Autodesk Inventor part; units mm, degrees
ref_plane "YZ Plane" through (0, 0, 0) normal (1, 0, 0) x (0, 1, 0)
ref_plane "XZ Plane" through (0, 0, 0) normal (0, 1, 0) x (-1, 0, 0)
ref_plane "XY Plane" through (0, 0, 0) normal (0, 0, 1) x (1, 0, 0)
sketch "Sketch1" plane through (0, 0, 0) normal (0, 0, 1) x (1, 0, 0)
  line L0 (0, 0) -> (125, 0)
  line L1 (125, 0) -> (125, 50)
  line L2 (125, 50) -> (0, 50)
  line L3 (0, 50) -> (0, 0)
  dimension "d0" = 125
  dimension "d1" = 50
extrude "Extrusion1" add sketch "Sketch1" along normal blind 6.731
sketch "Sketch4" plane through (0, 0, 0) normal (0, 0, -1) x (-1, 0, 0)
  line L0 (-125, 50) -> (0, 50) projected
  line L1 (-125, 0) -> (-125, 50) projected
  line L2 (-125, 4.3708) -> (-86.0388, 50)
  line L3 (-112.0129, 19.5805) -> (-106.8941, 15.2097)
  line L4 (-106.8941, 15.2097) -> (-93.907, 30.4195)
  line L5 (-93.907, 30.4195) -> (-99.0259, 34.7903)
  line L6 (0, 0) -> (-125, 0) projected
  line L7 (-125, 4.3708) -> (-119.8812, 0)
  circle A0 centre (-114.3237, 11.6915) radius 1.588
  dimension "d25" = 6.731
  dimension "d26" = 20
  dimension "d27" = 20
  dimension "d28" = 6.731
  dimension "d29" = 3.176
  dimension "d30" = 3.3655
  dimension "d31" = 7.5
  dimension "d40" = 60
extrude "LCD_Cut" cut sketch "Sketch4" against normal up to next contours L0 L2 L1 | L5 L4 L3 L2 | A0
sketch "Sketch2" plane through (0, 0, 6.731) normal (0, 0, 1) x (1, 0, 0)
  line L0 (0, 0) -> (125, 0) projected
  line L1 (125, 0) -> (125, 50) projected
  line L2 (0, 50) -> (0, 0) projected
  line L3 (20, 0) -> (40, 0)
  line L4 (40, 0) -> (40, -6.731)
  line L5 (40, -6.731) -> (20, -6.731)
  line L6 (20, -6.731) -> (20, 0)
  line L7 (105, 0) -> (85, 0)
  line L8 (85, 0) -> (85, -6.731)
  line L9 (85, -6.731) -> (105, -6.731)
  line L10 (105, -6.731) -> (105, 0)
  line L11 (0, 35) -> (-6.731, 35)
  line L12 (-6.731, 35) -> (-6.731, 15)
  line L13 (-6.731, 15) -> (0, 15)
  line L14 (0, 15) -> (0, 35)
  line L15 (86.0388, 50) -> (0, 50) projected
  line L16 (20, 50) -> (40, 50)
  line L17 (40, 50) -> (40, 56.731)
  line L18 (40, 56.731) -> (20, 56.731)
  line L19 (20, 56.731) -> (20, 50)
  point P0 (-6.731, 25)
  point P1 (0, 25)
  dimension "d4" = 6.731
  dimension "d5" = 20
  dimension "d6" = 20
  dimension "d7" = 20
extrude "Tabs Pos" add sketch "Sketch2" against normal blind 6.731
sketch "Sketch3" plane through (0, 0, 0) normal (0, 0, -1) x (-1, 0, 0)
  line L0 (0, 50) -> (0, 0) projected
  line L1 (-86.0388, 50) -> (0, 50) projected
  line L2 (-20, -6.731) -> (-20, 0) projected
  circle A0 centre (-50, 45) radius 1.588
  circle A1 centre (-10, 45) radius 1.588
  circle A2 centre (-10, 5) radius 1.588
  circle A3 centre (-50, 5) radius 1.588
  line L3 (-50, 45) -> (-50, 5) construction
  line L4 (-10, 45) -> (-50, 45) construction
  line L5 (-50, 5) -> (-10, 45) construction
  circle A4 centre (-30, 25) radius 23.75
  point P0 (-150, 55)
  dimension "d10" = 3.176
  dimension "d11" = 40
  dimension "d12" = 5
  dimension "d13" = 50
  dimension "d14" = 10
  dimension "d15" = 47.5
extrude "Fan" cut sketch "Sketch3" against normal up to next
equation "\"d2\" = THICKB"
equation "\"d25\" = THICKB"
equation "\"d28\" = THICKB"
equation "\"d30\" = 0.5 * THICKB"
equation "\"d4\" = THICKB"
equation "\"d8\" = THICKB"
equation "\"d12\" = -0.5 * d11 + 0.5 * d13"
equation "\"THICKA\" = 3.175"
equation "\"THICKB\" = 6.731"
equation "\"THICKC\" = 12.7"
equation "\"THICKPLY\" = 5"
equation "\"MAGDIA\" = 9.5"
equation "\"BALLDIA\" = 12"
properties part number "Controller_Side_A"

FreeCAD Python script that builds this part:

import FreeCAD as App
import Part
import Sketcher

V = App.Vector
Q = App.Units.Quantity


def add_polygon(sketch, points):
    """Adds a closed chain of lines whose ends are joined by coincident constraints."""
    first, n = sketch.GeometryCount, len(points)
    for a, b in zip(points, points[1:] + points[:1]):
        sketch.addGeometry(Part.LineSegment(App.Vector(*a, 0), App.Vector(*b, 0)), False)
    for i in range(n):
        sketch.addConstraint(Sketcher.Constraint("Coincident", first + i, 2, first + (i + 1) % n, 1))

doc = App.newDocument("Part")
params = doc.addObject("Spreadsheet::Sheet", "Params")
for row, (alias, value) in enumerate([
    ("pad1_length", "0.265 in"),
    ("sketch2_length", "0.265 in"),
    ("sketch3_width", "0.265 in"),
    ("pad2_length", "0.265 in"),
], start=1):
    params.set(f"A{row}", alias)
    params.set(f"B{row}", "=" + value)
    params.setAlias(f"B{row}", alias)

body = doc.addObject("PartDesign::Body", "Body")

# Sketch on XY plane
sketch1 = body.newObject("Sketcher::SketchObject", "Sketch")
sketch1.AttachmentSupport = (doc.getObject("XY_Plane"), [""])
sketch1.MapMode = "FlatFace"
add_polygon(sketch1, [(0, 50), (0, 0), (125, 0), (125, 50)])  # lines 0-3
sketch1.addConstraint([
    Sketcher.Constraint("Vertical", 0),
    Sketcher.Constraint("Horizontal", 1),
    Sketcher.Constraint("Vertical", 2),
    Sketcher.Constraint("Horizontal", 3),
    Sketcher.Constraint("Coincident", 0, 2, -1, 1),
    Sketcher.Constraint("DistanceY", 0, 2, 0, 1, Q("1.9685 in")),
    Sketcher.Constraint("DistanceX", 1, 1, 1, 2, Q("125 mm")),
])
pad1 = body.newObject("PartDesign::Pad", "Pad")
pad1.Profile = sketch1
pad1.setExpression("Length", "Params.pad1_length")

# Sketch on XY plane
sketch2 = body.newObject("Sketcher::SketchObject", "Sketch001")
sketch2.AttachmentSupport = (doc.getObject("XY_Plane"), [""])
sketch2.MapMode = "FlatFace"
add_polygon(sketch2, [(86, 50), (125, 50), (125, 4.4), (112, 19.6), (106.9, 15.2), (93.9, 30.4), (99, 34.8)])  # lines 0-6
sketch2.addGeometry(Part.Circle(V(114.3, 11.7, 0), V(0, 0, 1), 1.6), False)  # 7
sketch2.addConstraint([
    Sketcher.Constraint("Horizontal", 0),
    Sketcher.Constraint("Vertical", 1),
    Sketcher.Constraint("Perpendicular", 2, 3),
    Sketcher.Constraint("Perpendicular", 3, 4),
    Sketcher.Constraint("Perpendicular", 4, 5),
    Sketcher.Constraint("Perpendicular", 5, 6),
    Sketcher.Constraint("Equal", 2, 4),
    Sketcher.Constraint("Equal", 3, 5),
    Sketcher.Constraint("Equal", 4, 6),
    Sketcher.Constraint("Diameter", 7, Q("3.176 mm")),
    Sketcher.Constraint("Distance", 3, Q("0.265 in")),
    Sketcher.Constraint("Distance", 2, Q("0.7874 in")),
    Sketcher.Constraint("DistanceX", 0, 1, 0, 2, Q("1.5339 in")),
    Sketcher.Constraint("DistanceY", -1, 1, 7, 3, Q("0.4603 in")),
    Sketcher.Constraint("DistanceY", -1, 1, 0, 2, Q("1.9685 in")),
    Sketcher.Constraint("DistanceX", 3, 2, 7, 3, Q("0.2925 in")),
    Sketcher.Constraint("DistanceX", -1, 1, 7, 3, Q("114.3237 mm")),
])
sketch2.setExpression("Constraints[17]", "Params.sketch2_length")
pocket1 = body.newObject("PartDesign::Pocket", "Pocket")
pocket1.Profile = sketch2
pocket1.Type = "UpToFirst"
pocket1.Reversed = True

# Sketch on XY plane
sketch3 = body.newObject("Sketcher::SketchObject", "Sketch002")
sketch3.AttachmentSupport = (doc.getObject("XY_Plane"), [""])
sketch3.MapMode = "FlatFace"
sketch3.AttachmentOffset = App.Placement(V(0, 0, 0.265 * 25.4), App.Rotation())
add_polygon(sketch3, [(105, 0), (85, 0), (85, -7), (105, -7)])  # lines 0-3
add_polygon(sketch3, [(40, 0), (20, 0), (20, -7), (40, -7)])  # lines 4-7
add_polygon(sketch3, [(20, 57), (20, 50), (40, 50), (40, 57)])  # lines 8-11
add_polygon(sketch3, [(-7, 15), (0, 15), (0, 35), (-7, 35)])  # lines 12-15
sketch3.addConstraint([
    Sketcher.Constraint("Horizontal", 0),
    Sketcher.Constraint("Vertical", 1),
    Sketcher.Constraint("Horizontal", 2),
    Sketcher.Constraint("Vertical", 3),
    Sketcher.Constraint("Horizontal", 4),
    Sketcher.Constraint("Vertical", 5),
    Sketcher.Constraint("Horizontal", 6),
    Sketcher.Constraint("Vertical", 7),
    Sketcher.Constraint("Vertical", 8),
    Sketcher.Constraint("Horizontal", 9),
    Sketcher.Constraint("Vertical", 10),
    Sketcher.Constraint("Horizontal", 11),
    Sketcher.Constraint("Horizontal", 12),
    Sketcher.Constraint("Vertical", 13),
    Sketcher.Constraint("Horizontal", 14),
    Sketcher.Constraint("Vertical", 15),
    Sketcher.Constraint("PointOnObject", 0, 2, -1),
    Sketcher.Constraint("PointOnObject", 4, 2, -1),
    Sketcher.Constraint("PointOnObject", 12, 2, -2),
    Sketcher.Constraint("Horizontal", 2, 2, 5, 2),
    Sketcher.Constraint("Vertical", 5, 2, 8, 2),
    Sketcher.Constraint("Vertical", 7, 2, 9, 2),
    Sketcher.Constraint("Equal", 2, 4),
    Sketcher.Constraint("Equal", 14, 1),
    Sketcher.Constraint("Equal", 7, 8),
    Sketcher.Constraint("Equal", 11, 13),
    Sketcher.Constraint("DistanceX", 12, 1, 12, 2, Q("0.265 in")),
    Sketcher.Constraint("DistanceX", 0, 2, 0, 1, Q("0.7874 in")),
    Sketcher.Constraint("DistanceX", -1, 1, 4, 2, Q("0.7874 in")),
    Sketcher.Constraint("DistanceY", -1, 1, 8, 2, Q("1.9685 in")),
    Sketcher.Constraint("DistanceX", -1, 1, 0, 2, Q("85 mm")),
    Sketcher.Constraint("DistanceY", -1, 1, 12, 2, Q("15 mm")),
])
sketch3.setExpression("Constraints[42]", "Params.sketch3_width")
pad2 = body.newObject("PartDesign::Pad", "Pad001")
pad2.Profile = sketch3
pad2.setExpression("Length", "Params.pad2_length")
pad2.Reversed = True

# Sketch on XY plane
sketch4 = body.newObject("Sketcher::SketchObject", "Sketch003")
sketch4.AttachmentSupport = (doc.getObject("XY_Plane"), [""])
sketch4.MapMode = "FlatFace"
sketch4.addGeometry([
    Part.Circle(V(50, 45, 0), V(0, 0, 1), 1.6),  # 0
    Part.Circle(V(10, 45, 0), V(0, 0, 1), 1.6),  # 1
    Part.Circle(V(10, 5, 0), V(0, 0, 1), 1.6),  # 2
    Part.Circle(V(50, 5, 0), V(0, 0, 1), 1.6),  # 3
    Part.Circle(V(30, 25, 0), V(0, 0, 1), 23.8),  # 4
], False)
sketch4.addConstraint([
    Sketcher.Constraint("Equal", 0, 1),
    Sketcher.Constraint("Equal", 1, 2),
    Sketcher.Constraint("Equal", 2, 3),
    Sketcher.Constraint("Horizontal", 0, 3, 1, 3),
    Sketcher.Constraint("Horizontal", 2, 3, 3, 3),
    Sketcher.Constraint("Vertical", 1, 3, 2, 3),
    Sketcher.Constraint("Vertical", 0, 3, 3, 3),
    Sketcher.Constraint("Diameter", 0, Q("3.176 mm")),
    Sketcher.Constraint("Diameter", 4, Q("47.5 mm")),
    Sketcher.Constraint("DistanceX", -1, 1, 0, 3, Q("1.9685 in")),
    Sketcher.Constraint("DistanceX", -1, 1, 1, 3, Q("0.3937 in")),
    Sketcher.Constraint("DistanceY", 2, 3, 1, 3, Q("1.5748 in")),
    Sketcher.Constraint("DistanceY", -1, 1, 2, 3, Q("5 mm")),
    Sketcher.Constraint("DistanceX", -1, 1, 4, 3, Q("1.1811 in")),
    Sketcher.Constraint("DistanceY", 4, 3, 0, 3, Q("0.7874 in")),
])
pocket2 = body.newObject("PartDesign::Pocket", "Pocket001")
pocket2.Profile = sketch4
pocket2.Type = "UpToFirst"
pocket2.Reversed = True

doc.recompute()
